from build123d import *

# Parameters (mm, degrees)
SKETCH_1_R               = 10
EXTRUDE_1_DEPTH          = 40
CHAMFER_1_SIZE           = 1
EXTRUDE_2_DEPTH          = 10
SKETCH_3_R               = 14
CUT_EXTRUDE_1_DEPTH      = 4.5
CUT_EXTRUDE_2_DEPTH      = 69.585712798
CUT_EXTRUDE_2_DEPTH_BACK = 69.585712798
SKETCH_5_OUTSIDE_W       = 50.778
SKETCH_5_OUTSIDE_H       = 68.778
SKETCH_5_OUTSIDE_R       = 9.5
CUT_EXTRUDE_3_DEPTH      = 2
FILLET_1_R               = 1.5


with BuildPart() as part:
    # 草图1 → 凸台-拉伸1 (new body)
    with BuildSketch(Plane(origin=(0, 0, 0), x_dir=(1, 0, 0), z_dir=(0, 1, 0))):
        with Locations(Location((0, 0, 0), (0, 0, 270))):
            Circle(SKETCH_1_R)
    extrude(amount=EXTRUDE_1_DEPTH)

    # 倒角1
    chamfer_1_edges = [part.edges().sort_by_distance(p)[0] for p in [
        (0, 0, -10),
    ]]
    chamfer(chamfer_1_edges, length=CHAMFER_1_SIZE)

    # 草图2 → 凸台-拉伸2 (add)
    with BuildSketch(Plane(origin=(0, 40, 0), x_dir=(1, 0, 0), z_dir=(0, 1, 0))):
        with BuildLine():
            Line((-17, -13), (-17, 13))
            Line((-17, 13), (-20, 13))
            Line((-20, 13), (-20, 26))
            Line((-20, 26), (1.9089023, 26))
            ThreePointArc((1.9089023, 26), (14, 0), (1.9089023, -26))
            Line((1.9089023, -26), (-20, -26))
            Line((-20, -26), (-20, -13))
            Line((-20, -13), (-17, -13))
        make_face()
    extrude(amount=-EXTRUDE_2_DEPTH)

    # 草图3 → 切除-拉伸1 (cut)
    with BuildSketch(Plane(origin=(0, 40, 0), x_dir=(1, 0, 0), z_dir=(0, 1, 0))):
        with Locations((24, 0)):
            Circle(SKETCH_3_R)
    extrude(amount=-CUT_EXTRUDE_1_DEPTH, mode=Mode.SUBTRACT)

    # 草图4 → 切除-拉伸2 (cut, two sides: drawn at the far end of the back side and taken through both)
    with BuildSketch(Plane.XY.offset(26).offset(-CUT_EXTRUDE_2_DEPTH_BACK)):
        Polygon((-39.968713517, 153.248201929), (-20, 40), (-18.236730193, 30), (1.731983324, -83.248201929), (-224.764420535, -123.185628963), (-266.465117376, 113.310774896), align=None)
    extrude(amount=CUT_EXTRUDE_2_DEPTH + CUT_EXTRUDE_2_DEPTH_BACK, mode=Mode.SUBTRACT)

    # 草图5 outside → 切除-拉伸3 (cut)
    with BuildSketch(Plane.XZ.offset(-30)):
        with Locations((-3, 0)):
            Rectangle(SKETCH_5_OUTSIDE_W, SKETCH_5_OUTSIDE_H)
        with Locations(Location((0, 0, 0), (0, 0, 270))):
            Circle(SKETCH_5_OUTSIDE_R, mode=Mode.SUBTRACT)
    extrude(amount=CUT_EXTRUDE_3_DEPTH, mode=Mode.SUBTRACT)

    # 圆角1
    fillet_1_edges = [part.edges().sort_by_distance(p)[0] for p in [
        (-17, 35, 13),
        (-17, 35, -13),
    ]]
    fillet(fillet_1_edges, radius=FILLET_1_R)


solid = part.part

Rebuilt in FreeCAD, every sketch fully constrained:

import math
import FreeCAD as App
import Part
import Sketcher

V = App.Vector
Q = App.Units.Quantity


def edges_at(feature, points):
    """Names of the edges that pass closest to the given points."""
    edges = feature.Shape.Edges
    near = lambda p: min(range(len(edges)), key=lambda i: edges[i].distToShape(Part.Vertex(*p))[0])
    return sorted({f"Edge{near(p) + 1}" for p in points})


def add_polygon(sketch, points):
    """Adds a closed chain of lines whose ends are joined by coincident constraints."""
    first, n = sketch.GeometryCount, len(points)
    for a, b in zip(points, points[1:] + points[:1]):
        sketch.addGeometry(Part.LineSegment(App.Vector(*a, 0), App.Vector(*b, 0)), False)
    for i in range(n):
        sketch.addConstraint(Sketcher.Constraint("Coincident", first + i, 2, first + (i + 1) % n, 1))

doc = App.newDocument("Part")
body = doc.addObject("PartDesign::Body", "Body")

# Sketch on XZ plane
sketch1 = doc.addObject("Sketcher::SketchObject", "Sketch")
body.addObject(sketch1)
sketch1.AttachmentSupport = (doc.XZ_Plane, [""])
sketch1.MapMode = "FlatFace"
sketch1.addGeometry(Part.Circle(V(0, 0, 0), V(0, 0, 1), 10), False)
sketch1.addConstraint(Sketcher.Constraint("Coincident", 0, 3, -1, 1))
sketch1.addConstraint(Sketcher.Constraint("Diameter", 0, 20.0))
pad1 = doc.addObject("PartDesign::Pad", "Pad")
body.addObject(pad1)
pad1.Profile = sketch1
pad1.Length = 40
pad1.Reversed = True
doc.recompute()

chamfer = doc.addObject("PartDesign::Chamfer", "Chamfer")
body.addObject(chamfer)
chamfer.Base = (pad1, edges_at(pad1, [(0, 0, -10)]))
chamfer.Size = 1

# Sketch on XZ plane
sketch2 = doc.addObject("Sketcher::SketchObject", "Sketch001")
body.addObject(sketch2)
sketch2.AttachmentSupport = (doc.XZ_Plane, [""])
sketch2.MapMode = "FlatFace"
sketch2.AttachmentOffset = App.Placement(V(0, 0, -40), App.Rotation())
sketch2.addGeometry(Part.LineSegment(V(-17, -13, 0), V(-17, 13, 0)), False)
sketch2.addGeometry(Part.LineSegment(V(-17, 13, 0), V(-20, 13, 0)), False)
sketch2.addGeometry(Part.LineSegment(V(-20, 13, 0), V(-20, 26, 0)), False)
sketch2.addGeometry(Part.LineSegment(V(-20, 26, 0), V(1.9, 26, 0)), False)
sketch2.addGeometry(Part.ArcOfCircle(Part.Circle(V(-20, 0, 0), V(0, 0, 1), 34), math.radians(-50), math.radians(50)), False)
sketch2.addGeometry(Part.LineSegment(V(1.9, -26, 0), V(-20, -26, 0)), False)
sketch2.addGeometry(Part.LineSegment(V(-20, -26, 0), V(-20, -13, 0)), False)
sketch2.addGeometry(Part.LineSegment(V(-20, -13, 0), V(-17, -13, 0)), False)
sketch2.addConstraint(Sketcher.Constraint("Coincident", 0, 2, 1, 1))
sketch2.addConstraint(Sketcher.Constraint("Coincident", 1, 2, 2, 1))
sketch2.addConstraint(Sketcher.Constraint("Coincident", 2, 2, 3, 1))
sketch2.addConstraint(Sketcher.Constraint("Coincident", 3, 2, 4, 2))
sketch2.addConstraint(Sketcher.Constraint("Coincident", 4, 1, 5, 1))
sketch2.addConstraint(Sketcher.Constraint("Coincident", 5, 2, 6, 1))
sketch2.addConstraint(Sketcher.Constraint("Coincident", 6, 2, 7, 1))
sketch2.addConstraint(Sketcher.Constraint("Coincident", 7, 2, 0, 1))
sketch2.addConstraint(Sketcher.Constraint("Vertical", 0))
sketch2.addConstraint(Sketcher.Constraint("Horizontal", 1))
sketch2.addConstraint(Sketcher.Constraint("Vertical", 2))
sketch2.addConstraint(Sketcher.Constraint("Horizontal", 3))
sketch2.addConstraint(Sketcher.Constraint("Horizontal", 5))
sketch2.addConstraint(Sketcher.Constraint("Vertical", 6))
sketch2.addConstraint(Sketcher.Constraint("Horizontal", 7))
sketch2.addConstraint(Sketcher.Constraint("Symmetric", 3, 2, 4, 1, -1))
sketch2.addConstraint(Sketcher.Constraint("Symmetric", 1, 2, 6, 2, -1))
sketch2.addConstraint(Sketcher.Constraint("Vertical", 4, 3, 1, 2))
sketch2.addConstraint(Sketcher.Constraint("Radius", 4, 34.0))
sketch2.addConstraint(Sketcher.Constraint("DistanceX", 1, 2, 1, 1, 3.0))
sketch2.addConstraint(Sketcher.Constraint("DistanceY", 0, 1, 0, 2, 26.0))
sketch2.addConstraint(Sketcher.Constraint("DistanceY", 2, 1, 2, 2, 13.0))
sketch2.addConstraint(Sketcher.Constraint("DistanceX", 4, 3, -1, 1, 20.0))
pad2 = doc.addObject("PartDesign::Pad", "Pad001")
body.addObject(pad2)
pad2.Profile = sketch2
pad2.Length = 10

# Sketch on XZ plane
sketch3 = doc.addObject("Sketcher::SketchObject", "Sketch002")
body.addObject(sketch3)
sketch3.AttachmentSupport = (doc.XZ_Plane, [""])
sketch3.MapMode = "FlatFace"
sketch3.AttachmentOffset = App.Placement(V(0, 0, -40), App.Rotation())
sketch3.addGeometry(Part.Circle(V(24, 0, 0), V(0, 0, 1), 14), False)
sketch3.addConstraint(Sketcher.Constraint("PointOnObject", 0, 3, -1))
sketch3.addConstraint(Sketcher.Constraint("Diameter", 0, 28.0))
sketch3.addConstraint(Sketcher.Constraint("DistanceX", -1, 1, 0, 3, 24.0))
pocket1 = doc.addObject("PartDesign::Pocket", "Pocket")
body.addObject(pocket1)
pocket1.Profile = sketch3
pocket1.Length = 4.5
pocket1.Reversed = True

# Sketch on XY plane
sketch4 = doc.addObject("Sketcher::SketchObject", "Sketch003")
body.addObject(sketch4)
sketch4.AttachmentSupport = (doc.XY_Plane, [""])
sketch4.MapMode = "FlatFace"
sketch4.AttachmentOffset = App.Placement(V(0, 0, 26), App.Rotation())
add_polygon(sketch4, [(-20, 40), (-40, 153), (-266, 113), (-225, -123), (2, -83), (-18, 30)])  # lines 0-5
sketch4.addConstraint(Sketcher.Constraint("Perpendicular", 0, 1))
sketch4.addConstraint(Sketcher.Constraint("Perpendicular", 1, 2))
sketch4.addConstraint(Sketcher.Constraint("Perpendicular", 2, 3))
sketch4.addConstraint(Sketcher.Constraint("Perpendicular", 3, 4))
sketch4.addConstraint(Sketcher.Constraint("Parallel", 4, 5))
sketch4.addConstraint(Sketcher.Constraint("Equal", 0, 4))
sketch4.addConstraint(Sketcher.Constraint("Angle", 0, Q("100 deg")))
sketch4.addConstraint(Sketcher.Constraint("DistanceY", -1, 1, 4, 2, 30.0))
sketch4.addConstraint(Sketcher.Constraint("DistanceX", 5, 2, -1, 1, 20.0))
sketch4.addConstraint(Sketcher.Constraint("DistanceY", -1, 1, 5, 2, 40.0))
sketch4.addConstraint(Sketcher.Constraint("DistanceY", -1, 1, 0, 2, 153.248202))
sketch4.addConstraint(Sketcher.Constraint("DistanceX", 1, 2, 3, 2, 268.197101))
pocket2 = doc.addObject("PartDesign::Pocket", "Pocket001")
body.addObject(pocket2)
pocket2.Profile = sketch4
pocket2.Type = "ThroughAll"
pocket2.Midplane = True

# Sketch on XZ plane
sketch5 = doc.addObject("Sketcher::SketchObject", "Sketch004")
body.addObject(sketch5)
sketch5.AttachmentSupport = (doc.XZ_Plane, [""])
sketch5.MapMode = "FlatFace"
sketch5.AttachmentOffset = App.Placement(V(0, 0, -30), App.Rotation())
add_polygon(sketch5, [(-28, 34), (-28, -34), (22, -34), (22, 34)])  # lines 0-3
sketch5.addGeometry(Part.Circle(V(0, 0, 0), V(0, 0, 1), 10), False)  # 4
sketch5.addConstraint(Sketcher.Constraint("Vertical", 0))
sketch5.addConstraint(Sketcher.Constraint("Horizontal", 1))
sketch5.addConstraint(Sketcher.Constraint("Vertical", 2))
sketch5.addConstraint(Sketcher.Constraint("Horizontal", 3))
sketch5.addConstraint(Sketcher.Constraint("Coincident", 4, 3, -1, 1))
sketch5.addConstraint(Sketcher.Constraint("Diameter", 4, 19.0))
sketch5.addConstraint(Sketcher.Constraint("DistanceX", 1, 1, 1, 2, 50.778))
sketch5.addConstraint(Sketcher.Constraint("DistanceY", 0, 2, 0, 1, 68.778))
sketch5.addConstraint(Sketcher.Constraint("DistanceX", 0, 2, -1, 1, 28.389))
sketch5.addConstraint(Sketcher.Constraint("DistanceY", 0, 2, -1, 1, 34.389))
pocket3 = doc.addObject("PartDesign::Pocket", "Pocket002")
body.addObject(pocket3)
pocket3.Profile = sketch5
pocket3.Length = 2
pocket3.Reversed = True
doc.recompute()

fillet = doc.addObject("PartDesign::Fillet", "Fillet")
body.addObject(fillet)
fillet.Base = (pocket3, edges_at(pocket3, [(-17, 35, 13), (-17, 35, -13)]))
fillet.Radius = 1.5

doc.recompute()
